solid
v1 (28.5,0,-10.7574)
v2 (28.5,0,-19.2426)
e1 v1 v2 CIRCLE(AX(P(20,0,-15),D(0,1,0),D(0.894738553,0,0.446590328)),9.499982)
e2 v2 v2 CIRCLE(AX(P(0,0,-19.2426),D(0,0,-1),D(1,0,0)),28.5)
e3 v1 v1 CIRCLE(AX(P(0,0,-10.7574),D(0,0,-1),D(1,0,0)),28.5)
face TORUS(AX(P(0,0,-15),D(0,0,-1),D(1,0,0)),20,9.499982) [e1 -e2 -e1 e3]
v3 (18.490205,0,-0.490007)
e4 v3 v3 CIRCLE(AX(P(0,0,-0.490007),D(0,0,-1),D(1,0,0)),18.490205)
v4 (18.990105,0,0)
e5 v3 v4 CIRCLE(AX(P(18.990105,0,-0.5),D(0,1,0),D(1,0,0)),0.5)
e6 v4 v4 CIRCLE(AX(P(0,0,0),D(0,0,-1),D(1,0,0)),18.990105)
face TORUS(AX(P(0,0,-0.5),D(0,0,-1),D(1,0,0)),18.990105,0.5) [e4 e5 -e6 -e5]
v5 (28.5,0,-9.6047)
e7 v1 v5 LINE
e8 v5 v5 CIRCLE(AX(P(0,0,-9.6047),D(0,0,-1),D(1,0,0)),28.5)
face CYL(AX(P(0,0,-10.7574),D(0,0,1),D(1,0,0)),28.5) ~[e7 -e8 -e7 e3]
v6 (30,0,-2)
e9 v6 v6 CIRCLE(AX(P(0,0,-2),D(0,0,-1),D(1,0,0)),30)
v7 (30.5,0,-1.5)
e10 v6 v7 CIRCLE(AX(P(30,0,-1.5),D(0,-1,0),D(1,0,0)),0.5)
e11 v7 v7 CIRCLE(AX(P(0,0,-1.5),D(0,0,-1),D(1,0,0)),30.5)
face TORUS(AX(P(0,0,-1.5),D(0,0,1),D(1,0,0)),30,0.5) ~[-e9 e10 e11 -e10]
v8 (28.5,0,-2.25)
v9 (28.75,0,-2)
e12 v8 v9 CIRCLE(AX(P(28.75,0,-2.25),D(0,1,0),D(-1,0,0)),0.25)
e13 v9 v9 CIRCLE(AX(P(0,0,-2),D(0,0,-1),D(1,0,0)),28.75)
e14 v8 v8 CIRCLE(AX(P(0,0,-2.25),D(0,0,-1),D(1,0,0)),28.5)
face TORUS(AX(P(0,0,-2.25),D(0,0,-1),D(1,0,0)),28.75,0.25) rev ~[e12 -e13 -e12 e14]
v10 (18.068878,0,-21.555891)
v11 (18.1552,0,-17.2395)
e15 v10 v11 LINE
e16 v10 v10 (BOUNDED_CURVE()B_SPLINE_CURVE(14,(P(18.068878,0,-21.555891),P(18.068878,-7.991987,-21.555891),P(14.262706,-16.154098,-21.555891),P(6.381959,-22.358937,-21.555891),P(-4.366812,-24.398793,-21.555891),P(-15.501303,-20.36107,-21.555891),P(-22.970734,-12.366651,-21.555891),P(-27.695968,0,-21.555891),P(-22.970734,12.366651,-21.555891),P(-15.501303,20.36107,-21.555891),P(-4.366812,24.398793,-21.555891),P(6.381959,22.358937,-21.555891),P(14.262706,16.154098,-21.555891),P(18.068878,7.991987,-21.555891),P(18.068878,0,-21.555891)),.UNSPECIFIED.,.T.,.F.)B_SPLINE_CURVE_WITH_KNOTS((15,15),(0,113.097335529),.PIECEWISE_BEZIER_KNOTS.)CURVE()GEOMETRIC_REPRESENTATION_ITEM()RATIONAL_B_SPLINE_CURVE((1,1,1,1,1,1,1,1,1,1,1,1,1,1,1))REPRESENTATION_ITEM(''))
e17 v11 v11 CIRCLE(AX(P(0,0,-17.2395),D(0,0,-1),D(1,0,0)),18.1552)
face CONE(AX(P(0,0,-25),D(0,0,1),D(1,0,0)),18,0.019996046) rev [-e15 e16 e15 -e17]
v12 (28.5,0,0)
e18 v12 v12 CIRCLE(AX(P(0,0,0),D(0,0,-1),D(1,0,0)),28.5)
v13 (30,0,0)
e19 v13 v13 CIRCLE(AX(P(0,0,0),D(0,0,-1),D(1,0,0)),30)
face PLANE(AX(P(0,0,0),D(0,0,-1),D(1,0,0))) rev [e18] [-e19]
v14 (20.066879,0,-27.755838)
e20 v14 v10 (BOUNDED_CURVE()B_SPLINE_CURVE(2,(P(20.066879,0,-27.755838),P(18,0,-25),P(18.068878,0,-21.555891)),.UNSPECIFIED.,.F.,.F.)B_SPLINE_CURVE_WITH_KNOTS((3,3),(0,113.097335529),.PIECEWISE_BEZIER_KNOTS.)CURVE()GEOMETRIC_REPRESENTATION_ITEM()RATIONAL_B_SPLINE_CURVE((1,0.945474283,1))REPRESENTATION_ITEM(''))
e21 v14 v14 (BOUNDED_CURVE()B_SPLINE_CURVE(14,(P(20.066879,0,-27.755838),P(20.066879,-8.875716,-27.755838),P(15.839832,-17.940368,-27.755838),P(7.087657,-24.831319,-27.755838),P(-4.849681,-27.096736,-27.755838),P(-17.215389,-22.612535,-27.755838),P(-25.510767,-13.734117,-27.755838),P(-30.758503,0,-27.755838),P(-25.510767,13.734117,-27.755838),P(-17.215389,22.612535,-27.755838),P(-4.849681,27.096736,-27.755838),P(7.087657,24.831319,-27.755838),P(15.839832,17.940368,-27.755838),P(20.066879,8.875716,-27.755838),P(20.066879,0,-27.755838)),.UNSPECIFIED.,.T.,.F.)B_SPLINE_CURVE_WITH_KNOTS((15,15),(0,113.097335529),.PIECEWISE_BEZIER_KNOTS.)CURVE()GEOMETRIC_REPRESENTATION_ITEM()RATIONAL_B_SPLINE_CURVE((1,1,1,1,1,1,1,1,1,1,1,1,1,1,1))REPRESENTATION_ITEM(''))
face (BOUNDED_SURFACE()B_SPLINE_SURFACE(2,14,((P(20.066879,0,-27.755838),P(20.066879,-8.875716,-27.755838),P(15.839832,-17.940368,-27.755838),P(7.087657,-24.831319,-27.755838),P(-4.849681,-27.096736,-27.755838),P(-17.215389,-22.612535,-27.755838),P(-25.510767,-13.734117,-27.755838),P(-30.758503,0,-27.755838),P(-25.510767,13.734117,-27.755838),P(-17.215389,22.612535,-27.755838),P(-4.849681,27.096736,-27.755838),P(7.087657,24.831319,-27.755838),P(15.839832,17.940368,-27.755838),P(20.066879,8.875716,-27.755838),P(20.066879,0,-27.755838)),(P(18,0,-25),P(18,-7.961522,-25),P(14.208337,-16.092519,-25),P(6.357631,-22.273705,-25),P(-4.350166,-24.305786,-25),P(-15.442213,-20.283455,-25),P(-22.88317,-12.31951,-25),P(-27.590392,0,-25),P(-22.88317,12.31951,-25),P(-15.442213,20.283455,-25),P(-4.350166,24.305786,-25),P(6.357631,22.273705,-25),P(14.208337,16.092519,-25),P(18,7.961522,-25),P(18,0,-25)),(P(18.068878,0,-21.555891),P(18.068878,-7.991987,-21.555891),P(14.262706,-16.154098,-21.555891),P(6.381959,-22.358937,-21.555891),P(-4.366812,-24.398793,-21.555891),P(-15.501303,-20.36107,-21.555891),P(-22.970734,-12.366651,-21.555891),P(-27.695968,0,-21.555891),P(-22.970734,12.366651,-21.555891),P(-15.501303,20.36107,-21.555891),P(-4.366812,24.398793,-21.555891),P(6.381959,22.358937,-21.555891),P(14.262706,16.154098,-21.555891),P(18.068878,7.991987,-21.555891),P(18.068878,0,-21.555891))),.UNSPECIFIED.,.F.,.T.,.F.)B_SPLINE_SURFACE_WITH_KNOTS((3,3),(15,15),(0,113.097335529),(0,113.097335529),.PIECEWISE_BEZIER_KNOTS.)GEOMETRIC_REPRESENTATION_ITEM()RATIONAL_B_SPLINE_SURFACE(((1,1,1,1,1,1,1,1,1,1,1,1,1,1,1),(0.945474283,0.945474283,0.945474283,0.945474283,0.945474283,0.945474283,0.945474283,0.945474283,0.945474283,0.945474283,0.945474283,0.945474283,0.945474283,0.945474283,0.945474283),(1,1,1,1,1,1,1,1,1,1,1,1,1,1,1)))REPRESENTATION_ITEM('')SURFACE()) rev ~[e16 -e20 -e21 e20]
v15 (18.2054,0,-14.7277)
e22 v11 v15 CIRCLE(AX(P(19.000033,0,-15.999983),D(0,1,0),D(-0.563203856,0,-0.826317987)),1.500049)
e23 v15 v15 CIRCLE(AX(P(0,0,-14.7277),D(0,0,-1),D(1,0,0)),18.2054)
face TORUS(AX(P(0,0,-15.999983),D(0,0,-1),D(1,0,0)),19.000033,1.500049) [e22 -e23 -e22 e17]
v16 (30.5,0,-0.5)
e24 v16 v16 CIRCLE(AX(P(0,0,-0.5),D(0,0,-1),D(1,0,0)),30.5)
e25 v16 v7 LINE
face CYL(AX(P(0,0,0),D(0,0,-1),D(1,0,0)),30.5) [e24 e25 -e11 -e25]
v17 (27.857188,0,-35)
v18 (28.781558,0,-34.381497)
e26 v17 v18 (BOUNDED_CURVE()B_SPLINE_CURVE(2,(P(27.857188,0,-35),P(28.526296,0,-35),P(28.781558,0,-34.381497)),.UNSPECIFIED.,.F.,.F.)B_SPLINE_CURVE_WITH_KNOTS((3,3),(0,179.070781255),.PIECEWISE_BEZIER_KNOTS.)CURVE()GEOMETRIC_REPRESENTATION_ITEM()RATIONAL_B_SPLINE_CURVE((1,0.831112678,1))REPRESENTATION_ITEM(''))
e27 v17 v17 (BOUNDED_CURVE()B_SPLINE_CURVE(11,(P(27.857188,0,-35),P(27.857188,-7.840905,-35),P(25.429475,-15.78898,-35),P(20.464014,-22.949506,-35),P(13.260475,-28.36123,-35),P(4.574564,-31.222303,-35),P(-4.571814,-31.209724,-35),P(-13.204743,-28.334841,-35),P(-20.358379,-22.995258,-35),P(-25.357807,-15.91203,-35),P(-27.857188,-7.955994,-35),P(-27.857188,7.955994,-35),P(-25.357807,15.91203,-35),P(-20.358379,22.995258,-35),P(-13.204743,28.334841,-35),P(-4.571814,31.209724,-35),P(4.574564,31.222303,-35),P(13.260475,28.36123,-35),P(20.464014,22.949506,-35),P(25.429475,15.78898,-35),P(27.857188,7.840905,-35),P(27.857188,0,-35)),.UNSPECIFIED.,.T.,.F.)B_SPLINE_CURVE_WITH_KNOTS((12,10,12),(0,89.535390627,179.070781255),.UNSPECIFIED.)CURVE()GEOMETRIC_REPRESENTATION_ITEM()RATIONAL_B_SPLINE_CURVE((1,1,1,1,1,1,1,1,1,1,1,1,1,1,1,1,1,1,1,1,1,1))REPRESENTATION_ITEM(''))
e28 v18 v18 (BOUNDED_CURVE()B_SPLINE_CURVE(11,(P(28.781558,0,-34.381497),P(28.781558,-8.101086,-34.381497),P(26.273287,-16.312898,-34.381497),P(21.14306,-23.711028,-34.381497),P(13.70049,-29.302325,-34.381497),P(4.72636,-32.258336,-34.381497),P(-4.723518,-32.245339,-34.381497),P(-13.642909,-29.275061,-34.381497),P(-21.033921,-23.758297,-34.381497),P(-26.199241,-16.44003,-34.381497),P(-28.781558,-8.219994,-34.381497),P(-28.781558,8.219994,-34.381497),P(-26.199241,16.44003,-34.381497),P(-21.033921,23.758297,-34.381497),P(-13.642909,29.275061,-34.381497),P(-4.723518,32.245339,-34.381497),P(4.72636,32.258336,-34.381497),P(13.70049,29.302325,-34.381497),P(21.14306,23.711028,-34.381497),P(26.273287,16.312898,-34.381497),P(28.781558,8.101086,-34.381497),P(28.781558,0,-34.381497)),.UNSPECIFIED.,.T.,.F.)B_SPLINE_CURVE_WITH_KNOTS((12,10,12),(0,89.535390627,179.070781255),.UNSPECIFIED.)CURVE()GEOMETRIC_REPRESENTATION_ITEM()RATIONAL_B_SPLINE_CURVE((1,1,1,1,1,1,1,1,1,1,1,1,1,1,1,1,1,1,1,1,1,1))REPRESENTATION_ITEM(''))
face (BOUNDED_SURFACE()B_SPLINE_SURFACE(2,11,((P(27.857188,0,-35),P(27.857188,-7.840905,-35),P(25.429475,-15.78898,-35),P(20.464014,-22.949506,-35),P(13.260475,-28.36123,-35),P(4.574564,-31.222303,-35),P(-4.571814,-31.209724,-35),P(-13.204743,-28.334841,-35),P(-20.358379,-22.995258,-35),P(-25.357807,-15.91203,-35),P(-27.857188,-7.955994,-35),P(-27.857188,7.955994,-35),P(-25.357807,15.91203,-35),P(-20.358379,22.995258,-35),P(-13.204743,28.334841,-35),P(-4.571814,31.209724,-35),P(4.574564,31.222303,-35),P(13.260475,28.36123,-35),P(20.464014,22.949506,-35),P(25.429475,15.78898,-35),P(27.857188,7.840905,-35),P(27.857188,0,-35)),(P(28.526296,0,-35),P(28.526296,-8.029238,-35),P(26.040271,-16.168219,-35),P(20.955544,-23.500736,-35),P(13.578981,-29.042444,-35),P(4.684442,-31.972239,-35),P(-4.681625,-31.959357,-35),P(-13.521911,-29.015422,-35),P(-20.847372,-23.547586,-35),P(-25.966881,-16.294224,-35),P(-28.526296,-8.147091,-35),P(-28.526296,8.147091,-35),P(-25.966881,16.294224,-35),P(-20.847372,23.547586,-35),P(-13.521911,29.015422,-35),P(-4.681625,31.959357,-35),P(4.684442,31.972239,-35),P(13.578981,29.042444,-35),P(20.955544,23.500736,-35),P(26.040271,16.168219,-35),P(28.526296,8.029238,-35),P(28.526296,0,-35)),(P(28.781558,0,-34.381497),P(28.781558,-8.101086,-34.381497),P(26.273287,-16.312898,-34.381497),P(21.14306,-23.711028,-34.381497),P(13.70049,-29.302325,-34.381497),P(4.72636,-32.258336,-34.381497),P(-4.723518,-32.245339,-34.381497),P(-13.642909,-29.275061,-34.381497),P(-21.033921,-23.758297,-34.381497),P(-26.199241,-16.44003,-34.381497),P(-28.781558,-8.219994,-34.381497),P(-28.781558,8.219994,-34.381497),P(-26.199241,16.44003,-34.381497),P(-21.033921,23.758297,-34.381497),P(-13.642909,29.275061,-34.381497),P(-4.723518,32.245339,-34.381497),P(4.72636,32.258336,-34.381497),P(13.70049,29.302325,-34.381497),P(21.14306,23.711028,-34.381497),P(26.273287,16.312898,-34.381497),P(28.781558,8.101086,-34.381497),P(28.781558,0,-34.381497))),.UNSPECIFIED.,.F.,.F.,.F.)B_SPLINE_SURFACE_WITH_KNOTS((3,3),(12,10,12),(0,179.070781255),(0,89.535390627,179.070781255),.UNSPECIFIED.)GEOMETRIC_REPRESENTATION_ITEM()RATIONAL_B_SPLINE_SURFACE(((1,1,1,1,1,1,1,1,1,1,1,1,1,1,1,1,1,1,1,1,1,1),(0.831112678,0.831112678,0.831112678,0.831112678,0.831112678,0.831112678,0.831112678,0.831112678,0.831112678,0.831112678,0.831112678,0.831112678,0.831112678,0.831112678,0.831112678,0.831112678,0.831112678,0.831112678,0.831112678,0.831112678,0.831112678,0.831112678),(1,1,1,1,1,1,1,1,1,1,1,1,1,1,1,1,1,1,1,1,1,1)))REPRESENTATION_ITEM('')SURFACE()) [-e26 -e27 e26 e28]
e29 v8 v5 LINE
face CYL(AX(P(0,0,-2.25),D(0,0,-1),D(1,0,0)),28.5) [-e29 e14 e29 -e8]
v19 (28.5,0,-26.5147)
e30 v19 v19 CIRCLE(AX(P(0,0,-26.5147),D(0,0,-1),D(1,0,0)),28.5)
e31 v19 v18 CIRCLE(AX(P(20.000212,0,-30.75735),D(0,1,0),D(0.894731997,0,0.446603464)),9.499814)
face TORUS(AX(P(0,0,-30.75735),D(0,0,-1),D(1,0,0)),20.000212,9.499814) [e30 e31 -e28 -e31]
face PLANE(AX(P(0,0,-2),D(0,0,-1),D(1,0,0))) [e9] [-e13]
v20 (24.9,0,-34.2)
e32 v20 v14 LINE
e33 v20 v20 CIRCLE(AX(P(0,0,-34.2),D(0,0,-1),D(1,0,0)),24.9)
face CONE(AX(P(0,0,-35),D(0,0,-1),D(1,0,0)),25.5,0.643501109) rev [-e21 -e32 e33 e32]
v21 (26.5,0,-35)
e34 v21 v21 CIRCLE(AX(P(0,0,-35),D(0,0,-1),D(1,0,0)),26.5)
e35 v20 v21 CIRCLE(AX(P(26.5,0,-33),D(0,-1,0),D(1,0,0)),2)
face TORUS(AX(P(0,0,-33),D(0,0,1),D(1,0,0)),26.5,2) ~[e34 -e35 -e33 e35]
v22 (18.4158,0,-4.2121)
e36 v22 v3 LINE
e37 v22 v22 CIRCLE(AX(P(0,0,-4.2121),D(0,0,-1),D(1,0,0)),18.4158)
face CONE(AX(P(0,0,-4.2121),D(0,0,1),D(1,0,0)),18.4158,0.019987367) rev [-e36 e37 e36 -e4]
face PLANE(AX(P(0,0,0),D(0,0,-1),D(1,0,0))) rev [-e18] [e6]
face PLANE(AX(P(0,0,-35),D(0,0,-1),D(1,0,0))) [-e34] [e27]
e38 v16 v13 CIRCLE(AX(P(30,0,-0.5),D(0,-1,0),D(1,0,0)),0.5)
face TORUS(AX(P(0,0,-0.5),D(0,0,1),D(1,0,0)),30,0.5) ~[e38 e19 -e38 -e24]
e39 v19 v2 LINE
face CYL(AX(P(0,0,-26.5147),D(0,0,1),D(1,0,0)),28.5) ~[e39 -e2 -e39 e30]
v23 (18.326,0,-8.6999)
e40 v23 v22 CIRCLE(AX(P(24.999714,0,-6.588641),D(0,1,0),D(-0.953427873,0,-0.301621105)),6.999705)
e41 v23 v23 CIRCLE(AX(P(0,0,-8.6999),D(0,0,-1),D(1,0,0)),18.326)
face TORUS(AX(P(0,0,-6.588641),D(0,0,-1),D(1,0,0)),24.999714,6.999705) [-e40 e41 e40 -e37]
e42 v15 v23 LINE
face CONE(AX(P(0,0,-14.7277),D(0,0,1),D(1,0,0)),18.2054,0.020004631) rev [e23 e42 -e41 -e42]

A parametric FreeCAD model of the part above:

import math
import FreeCAD as App
import Part
import Sketcher
from FreeCAD import Vector
Q = App.Units.Quantity


def edges_at(feature, points):
    """Names of the edges that pass closest to the given points."""
    edges = feature.Shape.Edges
    near = lambda p: min(range(len(edges)), key=lambda i: edges[i].distToShape(Part.Vertex(*p))[0])
    return sorted({f"Edge{near(p) + 1}" for p in points})

doc = App.newDocument("Part")
body = doc.addObject("PartDesign::Body", "Body")

# Sketch on XZ plane
sketch1 = body.newObject("Sketcher::SketchObject", "Sketch")
sketch1.AttachmentSupport = (doc.getObject("XZ_Plane"), [""])
sketch1.MapMode = "FlatFace"
sketch1.addGeometry([
    Part.LineSegment(Vector(18.42, -4.21, 0), Vector(18.5, 0, 0)),  # 0
    Part.LineSegment(Vector(18.5, 0, 0), Vector(30.5, 0, 0)),  # 1
    Part.LineSegment(Vector(30.5, 0, 0), Vector(30.5, -2, 0)),  # 2
    Part.LineSegment(Vector(30.5, -2, 0), Vector(28.75, -2, 0)),  # 3
    Part.ArcOfCircle(Part.Circle(Vector(28.75, -2.25, 0), Vector(0, 0, 1), 0.25), math.radians(90), math.radians(180)),  # 4
    Part.LineSegment(Vector(28.5, -2.25, 0), Vector(28.5, -10.76, 0)),  # 5
    Part.ArcOfCircle(Part.Circle(Vector(20, -15, 0), Vector(0, 0, 1), 9.5), math.radians(-27), math.radians(27)),  # 6
    Part.LineSegment(Vector(28.5, -19.24, 0), Vector(28.5, -26.51, 0)),  # 7
    Part.ArcOfCircle(Part.Circle(Vector(20, -30.76, 0), Vector(0, 0, 1), 9.5), math.radians(-27), math.radians(27)),  # 8
    Part.LineSegment(Vector(28.5, -35, 0), Vector(25.5, -35, 0)),  # 9
    Part.LineSegment(Vector(25.5, -35, 0), Vector(18, -25, 0)),  # 10
    Part.LineSegment(Vector(18, -25, 0), Vector(18.16, -17.24, 0)),  # 11
    Part.ArcOfCircle(Part.Circle(Vector(19, -16, 0), Vector(0, 0, 1), 1.5), math.radians(122), math.radians(236)),  # 12
    Part.LineSegment(Vector(18.21, -14.73, 0), Vector(18.33, -8.7, 0)),  # 13
    Part.ArcOfCircle(Part.Circle(Vector(25, -6.59, 0), Vector(0, 0, 1), 7), math.radians(160), math.radians(198)),  # 14
], False)
sketch1.addConstraint([
    Sketcher.Constraint("Coincident", 0, 2, 1, 1),
    Sketcher.Constraint("Coincident", 1, 2, 2, 1),
    Sketcher.Constraint("Coincident", 2, 2, 3, 1),
    Sketcher.Constraint("Tangent", 3, 2, 4, 1),
    Sketcher.Constraint("Tangent", 4, 2, 5, 1),
    Sketcher.Constraint("Coincident", 5, 2, 6, 2),
    Sketcher.Constraint("Coincident", 6, 1, 7, 1),
    Sketcher.Constraint("Coincident", 7, 2, 8, 2),
    Sketcher.Constraint("Coincident", 8, 1, 9, 1),
    Sketcher.Constraint("Coincident", 9, 2, 10, 1),
    Sketcher.Constraint("Coincident", 10, 2, 11, 1),
    Sketcher.Constraint("Coincident", 11, 2, 12, 2),
    Sketcher.Constraint("Coincident", 12, 1, 13, 1),
    Sketcher.Constraint("Coincident", 13, 2, 14, 2),
    Sketcher.Constraint("Coincident", 14, 1, 0, 1),
    Sketcher.Constraint("Horizontal", 1),
    Sketcher.Constraint("Vertical", 2),
    Sketcher.Constraint("Horizontal", 3),
    Sketcher.Constraint("Vertical", 5),
    Sketcher.Constraint("Vertical", 7),
    Sketcher.Constraint("Horizontal", 9),
    Sketcher.Constraint("Equal", 6, 8),
    Sketcher.Constraint("PointOnObject", 0, 2, -1),
    Sketcher.Constraint("Parallel", 0, 11),
    Sketcher.Constraint("Parallel", 11, 13),
    Sketcher.Constraint("Vertical", 6, 3, 8, 3),
    Sketcher.Constraint("Vertical", 5, 2, 6, 1),
    Sketcher.Constraint("Vertical", 7, 2, 8, 1),
    Sketcher.Constraint("Radius", 6, Q("9.5 mm")),
    Sketcher.Constraint("Radius", 12, Q("1.5 mm")),
    Sketcher.Constraint("DistanceX", 9, 2, 9, 1, Q("3 mm")),
    Sketcher.Constraint("DistanceY", 2, 2, 2, 1, Q("2 mm")),
    Sketcher.Constraint("Radius", 4, Q("0.25 mm")),
    Sketcher.Constraint("DistanceX", -1, 1, 6, 3, Q("20 mm")),
    Sketcher.Constraint("DistanceY", 6, 3, -1, 1, Q("15 mm")),
    Sketcher.Constraint("DistanceX", -1, 1, 12, 3, Q("19 mm")),
    Sketcher.Constraint("DistanceY", 12, 3, -1, 1, Q("16 mm")),
    Sketcher.Constraint("DistanceX", -1, 1, 14, 3, Q("25 mm")),
    Sketcher.Constraint("DistanceY", 8, 1, -1, 1, Q("35 mm")),
    Sketcher.Constraint("DistanceX", -1, 1, 10, 2, Q("18 mm")),
    Sketcher.Constraint("DistanceY", 10, 2, -1, 1, Q("25 mm")),
    Sketcher.Constraint("Radius", 14, Q("7 mm")),
    Sketcher.Constraint("DistanceX", 4, 2, 2, 2, Q("2 mm")),
    Sketcher.Constraint("DistanceX", -1, 1, 0, 2, Q("18.5 mm")),
    Sketcher.Constraint("DistanceX", 1, 1, 1, 2, Q("12 mm")),
    Sketcher.Constraint("DistanceY", 13, 2, -1, 1, Q("8.7 mm")),
    Sketcher.Constraint("Distance", 0, Q("4.213 mm")),
    Sketcher.Constraint("Distance", 11, Q("7.762 mm")),
])
revolution = body.newObject("PartDesign::Revolution", "Revolution")
revolution.Profile = sketch1
revolution.ReferenceAxis = (sketch1, ["V_Axis"])
revolution.Angle = 360
doc.recompute()

fillet = body.newObject("PartDesign::Fillet", "Fillet")
fillet.Base = (revolution, edges_at(revolution, [(-18.5, 0, 0)]))
fillet.Radius = 0.5
doc.recompute()

fillet2 = body.newObject("PartDesign::Fillet", "Fillet001")
fillet2.Base = (fillet, edges_at(fillet, [(-25.5, 0, -35)]))
fillet2.Radius = 2
doc.recompute()

fillet3 = body.newObject("PartDesign::Fillet", "Fillet002")
fillet3.Base = (fillet2, edges_at(fillet2, [(-28.5, 0, -35)]))
fillet3.Radius = 1
doc.recompute()

fillet4 = body.newObject("PartDesign::Fillet", "Fillet003")
fillet4.Base = (fillet3, edges_at(fillet3, [(-30.5, 0, -2), (-30.5, 0, 0)]))
fillet4.Radius = 0.5
doc.recompute()

fillet5 = body.newObject("PartDesign::Fillet", "Fillet004")
fillet5.Base = (fillet4, edges_at(fillet4, [(-18, 0, -25)]))
fillet5.Radius = 10

doc.recompute()
